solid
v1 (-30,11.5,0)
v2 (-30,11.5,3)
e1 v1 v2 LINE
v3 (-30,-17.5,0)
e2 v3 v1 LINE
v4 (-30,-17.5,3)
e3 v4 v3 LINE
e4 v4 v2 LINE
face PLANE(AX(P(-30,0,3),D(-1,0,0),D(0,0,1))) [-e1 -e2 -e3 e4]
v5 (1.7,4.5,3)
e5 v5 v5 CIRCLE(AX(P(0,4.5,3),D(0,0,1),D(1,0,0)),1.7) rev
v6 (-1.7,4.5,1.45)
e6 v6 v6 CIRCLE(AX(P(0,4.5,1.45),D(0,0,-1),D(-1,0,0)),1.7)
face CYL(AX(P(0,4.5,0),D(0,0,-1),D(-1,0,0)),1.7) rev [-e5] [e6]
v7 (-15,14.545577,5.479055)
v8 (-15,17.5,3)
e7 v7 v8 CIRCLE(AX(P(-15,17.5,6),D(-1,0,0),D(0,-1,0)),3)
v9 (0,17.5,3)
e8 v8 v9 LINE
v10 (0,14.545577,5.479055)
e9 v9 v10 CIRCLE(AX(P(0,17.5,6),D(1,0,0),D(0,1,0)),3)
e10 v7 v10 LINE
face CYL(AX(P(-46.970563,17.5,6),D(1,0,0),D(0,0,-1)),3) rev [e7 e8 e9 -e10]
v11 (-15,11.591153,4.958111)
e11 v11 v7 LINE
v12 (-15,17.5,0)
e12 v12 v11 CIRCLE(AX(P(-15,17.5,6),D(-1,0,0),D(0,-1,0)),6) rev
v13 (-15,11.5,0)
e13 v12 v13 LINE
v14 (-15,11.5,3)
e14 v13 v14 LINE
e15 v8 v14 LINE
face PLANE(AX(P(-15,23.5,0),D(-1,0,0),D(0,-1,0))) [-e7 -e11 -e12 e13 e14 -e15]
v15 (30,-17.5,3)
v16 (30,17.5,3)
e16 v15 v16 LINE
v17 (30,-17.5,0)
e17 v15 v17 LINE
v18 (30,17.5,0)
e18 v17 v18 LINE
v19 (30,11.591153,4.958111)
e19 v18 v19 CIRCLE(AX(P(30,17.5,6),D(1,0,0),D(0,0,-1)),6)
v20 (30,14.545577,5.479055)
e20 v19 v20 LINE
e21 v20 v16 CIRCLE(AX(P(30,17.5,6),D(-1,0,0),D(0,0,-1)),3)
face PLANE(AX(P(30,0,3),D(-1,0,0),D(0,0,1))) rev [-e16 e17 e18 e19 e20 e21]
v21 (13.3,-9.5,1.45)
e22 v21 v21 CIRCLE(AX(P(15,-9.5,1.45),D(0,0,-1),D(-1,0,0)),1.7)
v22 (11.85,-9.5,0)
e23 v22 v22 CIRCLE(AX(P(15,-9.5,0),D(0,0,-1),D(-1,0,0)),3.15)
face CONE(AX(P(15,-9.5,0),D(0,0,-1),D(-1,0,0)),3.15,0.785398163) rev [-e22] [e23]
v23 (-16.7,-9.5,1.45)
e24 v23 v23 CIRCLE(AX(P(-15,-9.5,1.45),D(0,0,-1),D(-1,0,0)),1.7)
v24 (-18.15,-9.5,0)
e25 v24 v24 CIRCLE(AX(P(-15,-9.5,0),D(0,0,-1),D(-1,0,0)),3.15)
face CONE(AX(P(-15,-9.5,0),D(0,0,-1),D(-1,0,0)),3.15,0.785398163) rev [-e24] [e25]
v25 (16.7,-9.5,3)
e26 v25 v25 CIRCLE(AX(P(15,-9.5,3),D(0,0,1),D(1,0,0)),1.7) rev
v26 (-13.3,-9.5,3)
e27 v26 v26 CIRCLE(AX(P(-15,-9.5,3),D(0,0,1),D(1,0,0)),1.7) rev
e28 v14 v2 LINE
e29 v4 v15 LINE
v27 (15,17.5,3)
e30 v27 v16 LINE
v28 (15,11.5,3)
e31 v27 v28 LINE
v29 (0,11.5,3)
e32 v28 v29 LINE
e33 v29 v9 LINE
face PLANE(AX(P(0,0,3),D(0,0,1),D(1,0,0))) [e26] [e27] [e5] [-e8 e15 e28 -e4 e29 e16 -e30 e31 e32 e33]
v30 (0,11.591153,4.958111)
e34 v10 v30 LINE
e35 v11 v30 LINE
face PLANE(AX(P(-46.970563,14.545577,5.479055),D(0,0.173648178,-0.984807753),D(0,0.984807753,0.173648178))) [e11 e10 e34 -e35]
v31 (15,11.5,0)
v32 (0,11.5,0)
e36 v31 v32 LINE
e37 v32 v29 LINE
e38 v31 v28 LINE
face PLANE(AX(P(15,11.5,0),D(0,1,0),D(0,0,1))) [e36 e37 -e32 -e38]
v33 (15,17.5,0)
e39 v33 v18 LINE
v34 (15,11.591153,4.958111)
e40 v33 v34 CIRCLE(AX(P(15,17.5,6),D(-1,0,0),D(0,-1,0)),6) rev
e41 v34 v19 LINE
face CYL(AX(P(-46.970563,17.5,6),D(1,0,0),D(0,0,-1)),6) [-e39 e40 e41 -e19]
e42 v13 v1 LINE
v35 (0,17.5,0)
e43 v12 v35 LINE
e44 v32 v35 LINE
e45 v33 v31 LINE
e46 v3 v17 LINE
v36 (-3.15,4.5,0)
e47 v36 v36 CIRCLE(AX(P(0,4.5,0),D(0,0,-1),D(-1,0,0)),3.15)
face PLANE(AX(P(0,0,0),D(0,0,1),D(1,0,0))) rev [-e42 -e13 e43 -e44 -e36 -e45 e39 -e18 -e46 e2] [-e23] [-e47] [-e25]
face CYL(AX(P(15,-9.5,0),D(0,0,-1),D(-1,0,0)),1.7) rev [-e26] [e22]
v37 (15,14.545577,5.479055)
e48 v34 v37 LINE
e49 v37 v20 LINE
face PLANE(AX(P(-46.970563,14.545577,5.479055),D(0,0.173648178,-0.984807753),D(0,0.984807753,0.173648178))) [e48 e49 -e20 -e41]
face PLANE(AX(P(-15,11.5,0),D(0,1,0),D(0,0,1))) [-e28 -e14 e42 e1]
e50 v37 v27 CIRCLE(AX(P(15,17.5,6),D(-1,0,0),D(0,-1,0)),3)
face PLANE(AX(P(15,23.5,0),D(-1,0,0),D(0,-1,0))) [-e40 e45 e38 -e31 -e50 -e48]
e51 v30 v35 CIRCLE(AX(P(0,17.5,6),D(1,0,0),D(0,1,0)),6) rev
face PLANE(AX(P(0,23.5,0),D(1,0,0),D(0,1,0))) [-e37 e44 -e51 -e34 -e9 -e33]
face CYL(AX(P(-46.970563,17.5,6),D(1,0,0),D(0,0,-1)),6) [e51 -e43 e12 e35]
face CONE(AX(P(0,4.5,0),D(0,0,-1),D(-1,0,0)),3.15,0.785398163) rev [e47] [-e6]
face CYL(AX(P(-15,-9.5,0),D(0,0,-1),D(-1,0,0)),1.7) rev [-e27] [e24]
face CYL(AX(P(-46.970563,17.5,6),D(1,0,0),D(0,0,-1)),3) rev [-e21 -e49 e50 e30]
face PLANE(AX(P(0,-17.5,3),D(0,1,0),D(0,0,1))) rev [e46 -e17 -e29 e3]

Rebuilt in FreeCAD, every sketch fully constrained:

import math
import FreeCAD as App
import Part
import Sketcher
from FreeCAD import Vector
Q = App.Units.Quantity

doc = App.newDocument("Part")
body = doc.addObject("PartDesign::Body", "Body")

sketch1 = body.newObject("Sketcher::SketchObject", "Sketch")
sketch1.AttachmentSupport = (doc.getObject("XY_Plane"), [""])
sketch1.MapMode = "FlatFace"
sketch1.addGeometry(Part.LineSegment(Vector(-30, 18, 0), Vector(-30, -18, 0)), False)
sketch1.addGeometry(Part.LineSegment(Vector(-30, -18, 0), Vector(30, -18, 0)), False)
sketch1.addGeometry(Part.LineSegment(Vector(30, -18, 0), Vector(30, 18, 0)), False)
sketch1.addGeometry(Part.LineSegment(Vector(30, 18, 0), Vector(-30, 18, 0)), False)
sketch1.addConstraint(Sketcher.Constraint("Coincident", 0, 2, 1, 1))
sketch1.addConstraint(Sketcher.Constraint("Coincident", 1, 2, 2, 1))
sketch1.addConstraint(Sketcher.Constraint("Coincident", 2, 2, 3, 1))
sketch1.addConstraint(Sketcher.Constraint("Coincident", 3, 2, 0, 1))
sketch1.addConstraint(Sketcher.Constraint("Vertical", 0))
sketch1.addConstraint(Sketcher.Constraint("Horizontal", 1))
sketch1.addConstraint(Sketcher.Constraint("Vertical", 2))
sketch1.addConstraint(Sketcher.Constraint("Horizontal", 3))
sketch1.addConstraint(Sketcher.Constraint("Symmetric", 0, 2, 2, 2, -1, 1))
sketch1.addConstraint(Sketcher.Constraint("DistanceX", 1, 1, 1, 2, 60.0))
sketch1.addConstraint(Sketcher.Constraint("DistanceY", 0, 2, 0, 1, 35.0))
pad1 = body.newObject("PartDesign::Pad", "Pad")
pad1.Profile = sketch1
pad1.Length = 3

sketch2 = body.newObject("Sketcher::SketchObject", "Sketch001")
sketch2.AttachmentSupport = (doc.getObject("YZ_Plane"), [""])
sketch2.MapMode = "FlatFace"
sketch2.AttachmentOffset = App.Placement(Vector(0, 0, 30), App.Rotation())
sketch2.addGeometry(Part.LineSegment(Vector(11.6, 5, 0), Vector(14.5, 5.5, 0)), False)
sketch2.addGeometry(Part.ArcOfCircle(Part.Circle(Vector(17.5, 6, 0), Vector(0, 0, 1), 3), math.radians(-90), math.radians(190)), False)
sketch2.addGeometry(Part.LineSegment(Vector(17.5, 3, 0), Vector(12.3, 3, 0)), False)
sketch2.addGeometry(Part.ArcOfCircle(Part.Circle(Vector(17.5, 6, 0), Vector(0, 0, 1), 6), math.radians(-150), math.radians(190)), False)
sketch2.addConstraint(Sketcher.Constraint("Coincident", 0, 2, 1, 2))
sketch2.addConstraint(Sketcher.Constraint("Tangent", 1, 1, 2, 1))
sketch2.addConstraint(Sketcher.Constraint("Coincident", 2, 2, 3, 1))
sketch2.addConstraint(Sketcher.Constraint("Coincident", 3, 2, 0, 1))
sketch2.addConstraint(Sketcher.Constraint("Horizontal", 2))
sketch2.addConstraint(Sketcher.Constraint("Coincident", 3, 3, 1, 3))
sketch2.addConstraint(Sketcher.Constraint("Radius", 1, 3.0))
sketch2.addConstraint(Sketcher.Constraint("Radius", 3, 6.0))
sketch2.addConstraint(Sketcher.Constraint("Angle", 0, Q("10 deg")))
sketch2.addConstraint(Sketcher.Constraint("DistanceY", -1, 1, 1, 3, 6.0))
sketch2.addConstraint(Sketcher.Constraint("DistanceX", -1, 1, 1, 3, 17.5))
sketch2.addConstraint(Sketcher.Constraint("DistanceY", -1, 1, 3, 2, 4.958111))
pad2 = body.newObject("PartDesign::Pad", "Pad001")
pad2.Profile = sketch2
pad2.Length = 60
pad2.Reversed = True

sketch3 = body.newObject("Sketcher::SketchObject", "Sketch002")
sketch3.AttachmentSupport = (doc.getObject("XY_Plane"), [""])
sketch3.MapMode = "FlatFace"
sketch3.AttachmentOffset = App.Placement(Vector(0, 0, 3), App.Rotation())
sketch3.addGeometry(Part.LineSegment(Vector(15, 24, 0), Vector(15, 12, 0)), False)
sketch3.addGeometry(Part.LineSegment(Vector(15, 12, 0), Vector(0, 12, 0)), False)
sketch3.addGeometry(Part.LineSegment(Vector(0, 12, 0), Vector(0, 24, 0)), False)
sketch3.addGeometry(Part.LineSegment(Vector(0, 24, 0), Vector(15, 24, 0)), False)
sketch3.addGeometry(Part.LineSegment(Vector(-15, 24, 0), Vector(-15, 12, 0)), False)
sketch3.addGeometry(Part.LineSegment(Vector(-15, 12, 0), Vector(-30, 12, 0)), False)
sketch3.addGeometry(Part.LineSegment(Vector(-30, 12, 0), Vector(-30, 24, 0)), False)
sketch3.addGeometry(Part.LineSegment(Vector(-30, 24, 0), Vector(-15, 24, 0)), False)
sketch3.addConstraint(Sketcher.Constraint("Coincident", 0, 2, 1, 1))
sketch3.addConstraint(Sketcher.Constraint("Coincident", 1, 2, 2, 1))
sketch3.addConstraint(Sketcher.Constraint("Coincident", 2, 2, 3, 1))
sketch3.addConstraint(Sketcher.Constraint("Coincident", 3, 2, 0, 1))
sketch3.addConstraint(Sketcher.Constraint("Coincident", 4, 2, 5, 1))
sketch3.addConstraint(Sketcher.Constraint("Coincident", 5, 2, 6, 1))
sketch3.addConstraint(Sketcher.Constraint("Coincident", 6, 2, 7, 1))
sketch3.addConstraint(Sketcher.Constraint("Coincident", 7, 2, 4, 1))
sketch3.addConstraint(Sketcher.Constraint("Vertical", 0))
sketch3.addConstraint(Sketcher.Constraint("Horizontal", 1))
sketch3.addConstraint(Sketcher.Constraint("Vertical", 2))
sketch3.addConstraint(Sketcher.Constraint("Horizontal", 3))
sketch3.addConstraint(Sketcher.Constraint("Vertical", 4))
sketch3.addConstraint(Sketcher.Constraint("Horizontal", 5))
sketch3.addConstraint(Sketcher.Constraint("Vertical", 6))
sketch3.addConstraint(Sketcher.Constraint("Horizontal", 7))
sketch3.addConstraint(Sketcher.Constraint("Symmetric", 0, 2, 4, 2, -2))
sketch3.addConstraint(Sketcher.Constraint("PointOnObject", 1, 2, -2))
sketch3.addConstraint(Sketcher.Constraint("Horizontal", 3, 2, 6, 2))
sketch3.addConstraint(Sketcher.Constraint("Equal", 3, 5))
sketch3.addConstraint(Sketcher.Constraint("DistanceX", 1, 2, 1, 1, 15.0))
sketch3.addConstraint(Sketcher.Constraint("DistanceY", 0, 2, 0, 1, 12.0))
sketch3.addConstraint(Sketcher.Constraint("DistanceY", -1, 1, 0, 2, 11.5))
pocket1 = body.newObject("PartDesign::Pocket", "Pocket")
pocket1.Profile = sketch3
pocket1.Type = "ThroughAll"
pocket1.Midplane = True

sketch4 = body.newObject("Sketcher::SketchObject", "Sketch003")
sketch4.AttachmentSupport = (doc.getObject("XY_Plane"), [""])
sketch4.MapMode = "FlatFace"
sketch4.addGeometry(Part.Circle(Vector(0, 4.5, 0), Vector(0, 0, 1), 1.7), False)
sketch4.addGeometry(Part.Circle(Vector(-15, -9.5, 0), Vector(0, 0, 1), 1.7), False)
sketch4.addGeometry(Part.Circle(Vector(15, -9.5, 0), Vector(0, 0, 1), 1.7), False)
sketch4.addConstraint(Sketcher.Constraint("Equal", 0, 1))
sketch4.addConstraint(Sketcher.Constraint("Equal", 1, 2))
sketch4.addConstraint(Sketcher.Constraint("Symmetric", 1, 3, 2, 3, -2))
sketch4.addConstraint(Sketcher.Constraint("PointOnObject", 0, 3, -2))
sketch4.addConstraint(Sketcher.Constraint("Diameter", 0, 3.4))
sketch4.addConstraint(Sketcher.Constraint("DistanceX", 1, 3, -1, 1, 15.0))
sketch4.addConstraint(Sketcher.Constraint("DistanceY", 1, 3, 0, 3, 14.0))
sketch4.addConstraint(Sketcher.Constraint("DistanceY", -1, 1, 0, 3, 4.5))
doc.recompute()
hole = body.newObject("PartDesign::Hole", "Hole")
hole.Profile = sketch4
hole.ThreadType = "None"
hole.Diameter = 3.4
hole.DepthType = "Dimension"
hole.Depth = 3
hole.DrillPoint = "Angled"
hole.DrillPointAngle = 118
hole.HoleCutType = "Countersink"
hole.HoleCutDiameter = 6.3
hole.HoleCutCountersinkAngle = 90
hole.Reversed = True

doc.recompute()
